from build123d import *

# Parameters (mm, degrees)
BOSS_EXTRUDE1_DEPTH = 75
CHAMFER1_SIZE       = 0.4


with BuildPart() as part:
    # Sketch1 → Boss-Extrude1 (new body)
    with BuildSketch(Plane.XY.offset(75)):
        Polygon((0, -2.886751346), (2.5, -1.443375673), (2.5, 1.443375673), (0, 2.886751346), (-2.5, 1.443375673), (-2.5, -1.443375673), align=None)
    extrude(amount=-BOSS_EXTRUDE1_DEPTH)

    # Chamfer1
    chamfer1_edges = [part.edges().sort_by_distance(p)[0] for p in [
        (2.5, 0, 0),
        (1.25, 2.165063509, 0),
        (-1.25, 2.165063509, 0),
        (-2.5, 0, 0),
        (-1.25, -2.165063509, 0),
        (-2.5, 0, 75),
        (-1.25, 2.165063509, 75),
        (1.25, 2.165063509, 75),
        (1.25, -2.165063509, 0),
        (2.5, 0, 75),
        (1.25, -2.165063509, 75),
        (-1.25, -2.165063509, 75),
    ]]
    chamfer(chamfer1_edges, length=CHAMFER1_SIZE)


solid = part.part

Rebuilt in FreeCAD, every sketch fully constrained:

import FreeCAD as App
import Part
import Sketcher
Q = App.Units.Quantity


def edges_at(feature, points):
    """Names of the edges that pass closest to the given points."""
    edges = feature.Shape.Edges
    near = lambda p: min(range(len(edges)), key=lambda i: edges[i].distToShape(Part.Vertex(*p))[0])
    return sorted({f"Edge{near(p) + 1}" for p in points})

doc = App.newDocument("Part")
body = doc.addObject("PartDesign::Body", "Body")

# Sketch on XY plane
sketch1 = body.newObject("Sketcher::SketchObject", "Sketch")
sketch1.AttachmentSupport = (doc.getObject("XY_Plane"), [""])
sketch1.MapMode = "FlatFace"
sketch1.AttachmentOffset = App.Placement(App.Vector(0, 0, 75), App.Rotation())
sketch1.addGeometry([
    Part.LineSegment(App.Vector(0, -2.886751, 0), App.Vector(2.5, -1.443376, 0)),  # 0
    Part.LineSegment(App.Vector(2.5, -1.443376, 0), App.Vector(2.5, 1.443376, 0)),  # 1
    Part.LineSegment(App.Vector(2.5, 1.443376, 0), App.Vector(0, 2.886751, 0)),  # 2
    Part.LineSegment(App.Vector(0, 2.886751, 0), App.Vector(-2.5, 1.443376, 0)),  # 3
    Part.LineSegment(App.Vector(-2.5, 1.443376, 0), App.Vector(-2.5, -1.443376, 0)),  # 4
    Part.LineSegment(App.Vector(-2.5, -1.443376, 0), App.Vector(0, -2.886751, 0)),  # 5
], False)
sketch1.addConstraint([
    Sketcher.Constraint("Coincident", 0, 2, 1, 1),
    Sketcher.Constraint("Coincident", 1, 2, 2, 1),
    Sketcher.Constraint("Coincident", 2, 2, 3, 1),
    Sketcher.Constraint("Coincident", 3, 2, 4, 1),
    Sketcher.Constraint("Coincident", 4, 2, 5, 1),
    Sketcher.Constraint("Coincident", 5, 2, 0, 1),
    Sketcher.Constraint("Vertical", 1),
    Sketcher.Constraint("Vertical", 4),
    Sketcher.Constraint("Symmetric", 0, 2, 3, 2, -1, 1),
    Sketcher.Constraint("Symmetric", 2, 2, 5, 2, -1, 1),
    Sketcher.Constraint("PointOnObject", 2, 2, -2),
    Sketcher.Constraint("Parallel", 2, 5),
    Sketcher.Constraint("Horizontal", 1, 2, 3, 2),
    Sketcher.Constraint("Angle", 0, Q("30 deg")),
    Sketcher.Constraint("DistanceX", 3, 2, 1, 2, 5.0),
    Sketcher.Constraint("DistanceY", 1, 1, 1, 2, 2.886751),
])
pad1 = body.newObject("PartDesign::Pad", "Pad")
pad1.Profile = sketch1
pad1.Length = 75
pad1.Reversed = True
doc.recompute()

chamfer = body.newObject("PartDesign::Chamfer", "Chamfer")
chamfer.Base = (pad1, edges_at(pad1, [
    (2.5, 0, 0),
    (1.25, 2.165, 0),
    (-1.25, 2.165, 0),
    (-2.5, 0, 0),
    (-1.25, -2.165, 0),
    (-2.5, 0, 75),
    (-1.25, 2.165, 75),
    (1.25, 2.165, 75),
    (1.25, -2.165, 0),
    (2.5, 0, 75),
    (1.25, -2.165, 75),
    (-1.25, -2.165, 75),
]))
chamfer.Size = 0.4

doc.recompute()
